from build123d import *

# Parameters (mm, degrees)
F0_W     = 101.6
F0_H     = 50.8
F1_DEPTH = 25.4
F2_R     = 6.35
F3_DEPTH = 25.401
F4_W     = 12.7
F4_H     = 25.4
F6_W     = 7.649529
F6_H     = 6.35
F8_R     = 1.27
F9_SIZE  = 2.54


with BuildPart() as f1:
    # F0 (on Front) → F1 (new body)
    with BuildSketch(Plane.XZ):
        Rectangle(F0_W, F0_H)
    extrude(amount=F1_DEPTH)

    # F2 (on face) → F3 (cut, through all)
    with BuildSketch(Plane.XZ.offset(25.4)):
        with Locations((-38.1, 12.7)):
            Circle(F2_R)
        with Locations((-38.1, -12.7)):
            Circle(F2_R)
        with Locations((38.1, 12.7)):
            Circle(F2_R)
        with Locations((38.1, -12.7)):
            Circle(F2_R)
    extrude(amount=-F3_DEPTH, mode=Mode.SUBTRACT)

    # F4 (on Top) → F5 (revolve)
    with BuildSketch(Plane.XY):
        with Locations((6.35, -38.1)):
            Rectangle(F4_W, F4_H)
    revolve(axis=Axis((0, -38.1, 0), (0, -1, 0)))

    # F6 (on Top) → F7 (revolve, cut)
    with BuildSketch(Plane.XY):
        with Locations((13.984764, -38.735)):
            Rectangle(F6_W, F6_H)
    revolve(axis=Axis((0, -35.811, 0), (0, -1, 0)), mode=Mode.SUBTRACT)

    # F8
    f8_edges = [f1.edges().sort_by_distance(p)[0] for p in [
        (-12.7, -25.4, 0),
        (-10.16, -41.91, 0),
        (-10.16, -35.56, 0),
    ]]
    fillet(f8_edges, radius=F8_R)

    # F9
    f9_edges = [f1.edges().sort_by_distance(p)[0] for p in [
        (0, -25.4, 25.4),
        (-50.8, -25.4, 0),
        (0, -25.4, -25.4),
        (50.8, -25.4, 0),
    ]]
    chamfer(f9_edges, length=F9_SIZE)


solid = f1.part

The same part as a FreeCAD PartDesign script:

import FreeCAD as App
import Part
import Sketcher

V = App.Vector
Q = App.Units.Quantity


def edges_at(feature, points):
    """Names of the edges that pass closest to the given points."""
    edges = feature.Shape.Edges
    near = lambda p: min(range(len(edges)), key=lambda i: edges[i].distToShape(Part.Vertex(*p))[0])
    return sorted({f"Edge{near(p) + 1}" for p in points})


def add_polygon(sketch, points):
    """Adds a closed chain of lines whose ends are joined by coincident constraints."""
    first, n = sketch.GeometryCount, len(points)
    for a, b in zip(points, points[1:] + points[:1]):
        sketch.addGeometry(Part.LineSegment(App.Vector(*a, 0), App.Vector(*b, 0)), False)
    for i in range(n):
        sketch.addConstraint(Sketcher.Constraint("Coincident", first + i, 2, first + (i + 1) % n, 1))

doc = App.newDocument("Part")
body = doc.addObject("PartDesign::Body", "Body")

# Sketch on XZ plane
sketch1 = body.newObject("Sketcher::SketchObject", "Sketch")
sketch1.AttachmentSupport = (doc.getObject("XZ_Plane"), [""])
sketch1.MapMode = "FlatFace"
add_polygon(sketch1, [(-50.8, 25.4), (-50.8, -25.4), (50.8, -25.4), (50.8, 25.4)])  # lines 0-3
sketch1.addConstraint([
    Sketcher.Constraint("Vertical", 0),
    Sketcher.Constraint("Horizontal", 1),
    Sketcher.Constraint("Vertical", 2),
    Sketcher.Constraint("Horizontal", 3),
    Sketcher.Constraint("Symmetric", 0, 2, 2, 2, -1, 1),
    Sketcher.Constraint("DistanceX", 1, 1, 1, 2, Q("4 in")),
    Sketcher.Constraint("DistanceY", 0, 2, 0, 1, Q("2 in")),
])
pad1 = body.newObject("PartDesign::Pad", "Pad")
pad1.Profile = sketch1
pad1.Length = Q("1 in")

# Sketch on XZ plane
sketch2 = body.newObject("Sketcher::SketchObject", "Sketch001")
sketch2.AttachmentSupport = (doc.getObject("XZ_Plane"), [""])
sketch2.MapMode = "FlatFace"
sketch2.AttachmentOffset = App.Placement(V(0, 0, 1 * 25.4), App.Rotation())
sketch2.addGeometry([
    Part.Circle(V(-38.1, 12.7, 0), V(0, 0, 1), 6.35),
    Part.Circle(V(-38.1, -12.7, 0), V(0, 0, 1), 6.35),
    Part.Circle(V(38.1, 12.7, 0), V(0, 0, 1), 6.35),
    Part.Circle(V(38.1, -12.7, 0), V(0, 0, 1), 6.35),
], False)
sketch2.addConstraint([
    Sketcher.Constraint("Equal", 0, 1),
    Sketcher.Constraint("Equal", 1, 2),
    Sketcher.Constraint("Equal", 2, 3),
    Sketcher.Constraint("Symmetric", 1, 3, 2, 3, -1, 1),
    Sketcher.Constraint("Symmetric", 0, 3, 3, 3, -1, 1),
    Sketcher.Constraint("Symmetric", 0, 3, 2, 3, -2),
    Sketcher.Constraint("Diameter", 0, Q("0.5 in")),
    Sketcher.Constraint("DistanceY", 1, 3, 0, 3, Q("1 in")),
    Sketcher.Constraint("DistanceX", 0, 3, 2, 3, Q("3 in")),
])
pocket1 = body.newObject("PartDesign::Pocket", "Pocket")
pocket1.Profile = sketch2
pocket1.Type = "ThroughAll"

# Sketch on XY plane
sketch3 = body.newObject("Sketcher::SketchObject", "Sketch002")
sketch3.AttachmentSupport = (doc.getObject("XY_Plane"), [""])
sketch3.MapMode = "FlatFace"
add_polygon(sketch3, [(0, -25.4), (0, -50.8), (12.7, -50.8), (12.7, -25.4)])  # lines 0-3
sketch3.addConstraint([
    Sketcher.Constraint("Vertical", 0),
    Sketcher.Constraint("Horizontal", 1),
    Sketcher.Constraint("Vertical", 2),
    Sketcher.Constraint("Horizontal", 3),
    Sketcher.Constraint("PointOnObject", 0, 2, -2),
    Sketcher.Constraint("DistanceY", 0, 2, 0, 1, Q("1 in")),
    Sketcher.Constraint("DistanceX", 1, 1, 1, 2, Q("0.5 in")),
    Sketcher.Constraint("DistanceY", 0, 2, -1, 1, Q("2 in")),
])
revolution = body.newObject("PartDesign::Revolution", "Revolution")
revolution.Profile = sketch3
revolution.ReferenceAxis = (sketch3, ["V_Axis"])
revolution.Angle = 360

# Sketch on XY plane
sketch4 = body.newObject("Sketcher::SketchObject", "Sketch003")
sketch4.AttachmentSupport = (doc.getObject("XY_Plane"), [""])
sketch4.MapMode = "FlatFace"
add_polygon(sketch4, [(10.159999, -35.56), (10.159999, -41.91), (17.809528, -41.91), (17.809528, -35.56)])  # lines 0-3
sketch4.addConstraint([
    Sketcher.Constraint("Vertical", 0),
    Sketcher.Constraint("Horizontal", 1),
    Sketcher.Constraint("Vertical", 2),
    Sketcher.Constraint("Horizontal", 3),
    Sketcher.Constraint("DistanceY", 0, 2, 0, 1, Q("0.25 in")),
    Sketcher.Constraint("DistanceX", -1, 1, 0, 2, Q("0.4 in")),
    Sketcher.Constraint("DistanceY", 2, 2, -1, 1, Q("1.4 in")),
    Sketcher.Constraint("DistanceX", 1, 1, 1, 2, Q("7.649529 mm")),
])
groove = body.newObject("PartDesign::Groove", "Groove")
groove.Profile = sketch4
groove.ReferenceAxis = (sketch4, ["V_Axis"])
groove.Angle = 360
doc.recompute()

fillet = body.newObject("PartDesign::Fillet", "Fillet")
fillet.Base = (groove, edges_at(groove, [(-12.7, -25.4, 0), (-10.16, -41.91, 0), (-10.16, -35.56, 0)]))
fillet.Radius = Q("0.05 in")
doc.recompute()

chamfer = body.newObject("PartDesign::Chamfer", "Chamfer")
chamfer.Base = (fillet, edges_at(fillet, [
    (0, -25.4, 25.4),
    (-50.8, -25.4, 0),
    (0, -25.4, -25.4),
    (50.8, -25.4, 0),
]))
chamfer.Size = Q("0.1 in")

doc.recompute()
